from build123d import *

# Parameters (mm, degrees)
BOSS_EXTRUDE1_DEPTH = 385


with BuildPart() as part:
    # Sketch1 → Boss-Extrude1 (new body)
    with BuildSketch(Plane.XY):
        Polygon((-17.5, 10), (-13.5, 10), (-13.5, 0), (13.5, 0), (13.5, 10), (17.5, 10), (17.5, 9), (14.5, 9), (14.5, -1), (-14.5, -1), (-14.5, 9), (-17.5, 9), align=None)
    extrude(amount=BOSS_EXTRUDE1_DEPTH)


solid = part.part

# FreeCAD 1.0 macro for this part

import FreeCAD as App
import Part
import Sketcher
from FreeCAD import Vector


def add_polygon(sketch, points):
    """Adds a closed chain of lines whose ends are joined by coincident constraints."""
    first, n = sketch.GeometryCount, len(points)
    for a, b in zip(points, points[1:] + points[:1]):
        sketch.addGeometry(Part.LineSegment(App.Vector(*a, 0), App.Vector(*b, 0)), False)
    for i in range(n):
        sketch.addConstraint(Sketcher.Constraint("Coincident", first + i, 2, first + (i + 1) % n, 1))

doc = App.newDocument("Part")
body = doc.addObject("PartDesign::Body", "Body")

# Sketch on XY plane
sketch1 = body.newObject("Sketcher::SketchObject", "Sketch")
sketch1.AttachmentSupport = (doc.getObject("XY_Plane"), [""])
sketch1.MapMode = "FlatFace"
add_polygon(sketch1, [(-13.5, 10), (-17.5, 10), (-17.5, 9), (-14.5, 9), (-14.5, -1), (14.5, -1), (14.5, 9), (17.5, 9), (17.5, 10), (13.5, 10), (13.5, 0), (-13.5, 0)])  # lines 0-11
sketch1.addConstraint([
    Sketcher.Constraint("Horizontal", 0),
    Sketcher.Constraint("Vertical", 1),
    Sketcher.Constraint("Horizontal", 2),
    Sketcher.Constraint("Vertical", 3),
    Sketcher.Constraint("Horizontal", 4),
    Sketcher.Constraint("Vertical", 5),
    Sketcher.Constraint("Horizontal", 6),
    Sketcher.Constraint("Vertical", 7),
    Sketcher.Constraint("Horizontal", 8),
    Sketcher.Constraint("Vertical", 9),
    Sketcher.Constraint("Horizontal", 10),
    Sketcher.Constraint("Vertical", 11),
    Sketcher.Constraint("Symmetric", 9, 2, 10, 2, -1, 1),
    Sketcher.Constraint("Symmetric", 2, 2, 5, 2, -2),
    Sketcher.Constraint("Symmetric", 0, 2, 7, 2, -2),
    Sketcher.Constraint("Equal", 5, 9),
    Sketcher.Constraint("DistanceX", 0, 2, 0, 1, 4.0),
    Sketcher.Constraint("DistanceX", 2, 1, 2, 2, 3.0),
    Sketcher.Constraint("DistanceX", 4, 1, 4, 2, 29.0),
    Sketcher.Constraint("DistanceY", 1, 2, 1, 1, 1.0),
    Sketcher.Constraint("DistanceY", 3, 2, 3, 1, 10.0),
])
pad1 = body.newObject("PartDesign::Pad", "Pad")
pad1.Profile = sketch1
pad1.Length = 385

doc.recompute()
